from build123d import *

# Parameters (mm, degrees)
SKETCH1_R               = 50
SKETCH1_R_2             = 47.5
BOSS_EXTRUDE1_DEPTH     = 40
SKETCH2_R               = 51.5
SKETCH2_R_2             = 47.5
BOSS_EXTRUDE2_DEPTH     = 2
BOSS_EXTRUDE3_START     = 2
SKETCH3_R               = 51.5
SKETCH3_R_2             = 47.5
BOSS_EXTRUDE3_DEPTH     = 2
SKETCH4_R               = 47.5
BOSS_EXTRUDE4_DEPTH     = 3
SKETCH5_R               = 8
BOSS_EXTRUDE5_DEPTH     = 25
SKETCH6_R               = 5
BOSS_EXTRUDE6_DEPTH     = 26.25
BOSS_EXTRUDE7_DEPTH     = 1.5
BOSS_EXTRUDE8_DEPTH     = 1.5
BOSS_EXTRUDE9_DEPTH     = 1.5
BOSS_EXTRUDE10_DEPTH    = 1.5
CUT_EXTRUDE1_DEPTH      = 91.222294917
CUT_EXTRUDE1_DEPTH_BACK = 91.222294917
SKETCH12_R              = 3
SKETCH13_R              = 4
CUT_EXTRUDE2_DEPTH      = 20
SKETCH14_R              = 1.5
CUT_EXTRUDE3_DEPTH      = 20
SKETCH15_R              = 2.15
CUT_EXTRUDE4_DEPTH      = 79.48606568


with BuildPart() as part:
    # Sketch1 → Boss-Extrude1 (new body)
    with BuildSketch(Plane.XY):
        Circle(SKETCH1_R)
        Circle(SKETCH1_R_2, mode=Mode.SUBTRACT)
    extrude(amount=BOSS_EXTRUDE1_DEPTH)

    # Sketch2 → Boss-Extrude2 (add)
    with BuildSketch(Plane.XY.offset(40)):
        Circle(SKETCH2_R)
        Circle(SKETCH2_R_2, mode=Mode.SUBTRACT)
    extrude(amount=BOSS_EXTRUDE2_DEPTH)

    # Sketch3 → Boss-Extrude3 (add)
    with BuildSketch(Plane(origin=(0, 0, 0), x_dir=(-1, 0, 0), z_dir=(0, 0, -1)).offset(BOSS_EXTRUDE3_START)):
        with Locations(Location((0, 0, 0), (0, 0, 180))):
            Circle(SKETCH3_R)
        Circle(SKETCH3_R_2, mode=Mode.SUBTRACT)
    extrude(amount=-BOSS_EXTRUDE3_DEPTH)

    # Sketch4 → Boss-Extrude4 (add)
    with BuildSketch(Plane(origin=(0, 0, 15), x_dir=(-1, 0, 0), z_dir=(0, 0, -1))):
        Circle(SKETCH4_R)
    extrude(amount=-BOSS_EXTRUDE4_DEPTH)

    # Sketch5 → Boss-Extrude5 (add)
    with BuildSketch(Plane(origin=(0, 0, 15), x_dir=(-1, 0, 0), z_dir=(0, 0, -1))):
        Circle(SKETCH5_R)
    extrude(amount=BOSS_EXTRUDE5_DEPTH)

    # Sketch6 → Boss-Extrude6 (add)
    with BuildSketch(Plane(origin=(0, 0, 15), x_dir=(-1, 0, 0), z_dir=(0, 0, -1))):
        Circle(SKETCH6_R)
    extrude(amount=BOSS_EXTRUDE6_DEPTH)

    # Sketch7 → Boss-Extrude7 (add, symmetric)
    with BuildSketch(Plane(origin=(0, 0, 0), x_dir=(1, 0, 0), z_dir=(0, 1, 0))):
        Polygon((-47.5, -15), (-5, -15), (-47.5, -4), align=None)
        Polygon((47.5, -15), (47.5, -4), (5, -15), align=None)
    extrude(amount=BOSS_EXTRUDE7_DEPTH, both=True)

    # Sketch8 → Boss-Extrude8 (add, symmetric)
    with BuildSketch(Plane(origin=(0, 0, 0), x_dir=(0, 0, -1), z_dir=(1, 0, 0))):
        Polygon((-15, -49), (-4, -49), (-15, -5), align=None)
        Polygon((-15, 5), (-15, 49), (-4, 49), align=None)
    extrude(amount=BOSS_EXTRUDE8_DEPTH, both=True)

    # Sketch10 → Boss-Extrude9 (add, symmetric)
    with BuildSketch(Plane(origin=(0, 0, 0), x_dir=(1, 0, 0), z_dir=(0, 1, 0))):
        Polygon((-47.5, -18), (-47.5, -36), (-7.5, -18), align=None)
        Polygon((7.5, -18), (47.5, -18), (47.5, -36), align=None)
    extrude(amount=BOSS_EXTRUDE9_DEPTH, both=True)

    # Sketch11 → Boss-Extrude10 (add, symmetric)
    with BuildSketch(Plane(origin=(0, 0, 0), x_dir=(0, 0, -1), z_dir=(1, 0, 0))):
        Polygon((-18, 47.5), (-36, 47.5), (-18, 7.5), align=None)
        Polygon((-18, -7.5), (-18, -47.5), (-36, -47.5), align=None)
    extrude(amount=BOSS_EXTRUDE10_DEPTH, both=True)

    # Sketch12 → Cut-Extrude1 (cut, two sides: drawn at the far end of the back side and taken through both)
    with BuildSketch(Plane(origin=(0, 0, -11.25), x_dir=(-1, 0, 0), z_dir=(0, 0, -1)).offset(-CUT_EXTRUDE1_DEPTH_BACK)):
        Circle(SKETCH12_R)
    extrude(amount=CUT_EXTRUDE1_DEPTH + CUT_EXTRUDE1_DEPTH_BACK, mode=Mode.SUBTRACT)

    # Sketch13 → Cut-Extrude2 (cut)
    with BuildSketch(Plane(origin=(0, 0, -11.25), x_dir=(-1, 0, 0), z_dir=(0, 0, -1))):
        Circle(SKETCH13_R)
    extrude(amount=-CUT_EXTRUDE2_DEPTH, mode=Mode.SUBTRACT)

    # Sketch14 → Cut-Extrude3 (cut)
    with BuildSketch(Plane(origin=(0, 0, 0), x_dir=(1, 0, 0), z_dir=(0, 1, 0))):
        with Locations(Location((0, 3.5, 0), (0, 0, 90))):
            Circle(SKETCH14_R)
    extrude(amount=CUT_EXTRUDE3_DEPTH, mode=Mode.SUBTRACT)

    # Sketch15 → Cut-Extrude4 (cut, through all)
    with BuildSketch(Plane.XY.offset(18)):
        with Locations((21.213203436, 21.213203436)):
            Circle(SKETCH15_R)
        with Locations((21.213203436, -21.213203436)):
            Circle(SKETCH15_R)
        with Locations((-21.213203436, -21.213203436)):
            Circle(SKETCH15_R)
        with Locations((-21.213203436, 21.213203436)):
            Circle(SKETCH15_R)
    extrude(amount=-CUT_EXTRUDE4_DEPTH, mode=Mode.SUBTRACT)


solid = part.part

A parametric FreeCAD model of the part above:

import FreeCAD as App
import Part
import Sketcher
from FreeCAD import Vector
Q = App.Units.Quantity

doc = App.newDocument("Part")
body = doc.addObject("PartDesign::Body", "Body")

sketch1 = doc.addObject("Sketcher::SketchObject", "Sketch")
body.addObject(sketch1)
sketch1.AttachmentSupport = (doc.XY_Plane, [""])
sketch1.MapMode = "FlatFace"
sketch1.addGeometry([
    Part.Circle(Vector(0, 0, 0), Vector(0, 0, 1), 50),
    Part.Circle(Vector(0, 0, 0), Vector(0, 0, 1), 47.5),
], False)
sketch1.addConstraint([
    Sketcher.Constraint("Coincident", 0, 3, -1, 1),
    Sketcher.Constraint("Coincident", 1, 3, -1, 1),
    Sketcher.Constraint("Diameter", 0, Q("100 mm")),
    Sketcher.Constraint("Diameter", 1, Q("95 mm")),
])
pad1 = doc.addObject("PartDesign::Pad", "Pad")
body.addObject(pad1)
pad1.Profile = sketch1
pad1.Length = 40

sketch2 = doc.addObject("Sketcher::SketchObject", "Sketch001")
body.addObject(sketch2)
sketch2.AttachmentSupport = (doc.XY_Plane, [""])
sketch2.MapMode = "FlatFace"
sketch2.AttachmentOffset = App.Placement(Vector(0, 0, 40), App.Rotation())
sketch2.addGeometry([
    Part.Circle(Vector(0, 0, 0), Vector(0, 0, 1), 51.5),
    Part.Circle(Vector(0, 0, 0), Vector(0, 0, 1), 47.5),
], False)
sketch2.addConstraint([
    Sketcher.Constraint("Coincident", 0, 3, -1, 1),
    Sketcher.Constraint("Coincident", 1, 3, -1, 1),
    Sketcher.Constraint("Diameter", 0, Q("103 mm")),
    Sketcher.Constraint("Diameter", 1, Q("95 mm")),
])
pad2 = doc.addObject("PartDesign::Pad", "Pad001")
body.addObject(pad2)
pad2.Profile = sketch2
pad2.Length = 2

sketch3 = doc.addObject("Sketcher::SketchObject", "Sketch002")
body.addObject(sketch3)
sketch3.AttachmentSupport = (doc.XY_Plane, [""])
sketch3.MapMode = "FlatFace"
sketch3.AttachmentOffset = App.Placement(Vector(0, 0, -2), App.Rotation())
sketch3.addGeometry([
    Part.Circle(Vector(0, 0, 0), Vector(0, 0, 1), 51.5),
    Part.Circle(Vector(0, 0, 0), Vector(0, 0, 1), 47.5),
], False)
sketch3.addConstraint([
    Sketcher.Constraint("Coincident", 0, 3, -1, 1),
    Sketcher.Constraint("Coincident", 1, 3, -1, 1),
    Sketcher.Constraint("Diameter", 0, Q("103 mm")),
    Sketcher.Constraint("Diameter", 1, Q("95 mm")),
])
pad3 = doc.addObject("PartDesign::Pad", "Pad002")
body.addObject(pad3)
pad3.Profile = sketch3
pad3.Length = 2

sketch4 = doc.addObject("Sketcher::SketchObject", "Sketch003")
body.addObject(sketch4)
sketch4.AttachmentSupport = (doc.XY_Plane, [""])
sketch4.MapMode = "FlatFace"
sketch4.AttachmentOffset = App.Placement(Vector(0, 0, 15), App.Rotation())
sketch4.addGeometry(Part.Circle(Vector(0, 0, 0), Vector(0, 0, 1), 47.5), False)
sketch4.addConstraint([
    Sketcher.Constraint("Coincident", 0, 3, -1, 1),
    Sketcher.Constraint("Diameter", 0, Q("95 mm")),
])
pad4 = doc.addObject("PartDesign::Pad", "Pad003")
body.addObject(pad4)
pad4.Profile = sketch4
pad4.Length = 3

sketch5 = doc.addObject("Sketcher::SketchObject", "Sketch004")
body.addObject(sketch5)
sketch5.AttachmentSupport = (doc.XY_Plane, [""])
sketch5.MapMode = "FlatFace"
sketch5.AttachmentOffset = App.Placement(Vector(0, 0, 15), App.Rotation())
sketch5.addGeometry(Part.Circle(Vector(0, 0, 0), Vector(0, 0, 1), 8), False)
sketch5.addConstraint([
    Sketcher.Constraint("Coincident", 0, 3, -1, 1),
    Sketcher.Constraint("Diameter", 0, Q("16 mm")),
])
pad5 = doc.addObject("PartDesign::Pad", "Pad004")
body.addObject(pad5)
pad5.Profile = sketch5
pad5.Length = 25
pad5.Reversed = True

sketch6 = doc.addObject("Sketcher::SketchObject", "Sketch005")
body.addObject(sketch6)
sketch6.AttachmentSupport = (doc.XY_Plane, [""])
sketch6.MapMode = "FlatFace"
sketch6.AttachmentOffset = App.Placement(Vector(0, 0, 15), App.Rotation())
sketch6.addGeometry(Part.Circle(Vector(0, 0, 0), Vector(0, 0, 1), 5), False)
sketch6.addConstraint([
    Sketcher.Constraint("Coincident", 0, 3, -1, 1),
    Sketcher.Constraint("Diameter", 0, Q("10 mm")),
])
pad6 = doc.addObject("PartDesign::Pad", "Pad005")
body.addObject(pad6)
pad6.Profile = sketch6
pad6.Length = 26.25
pad6.Reversed = True

sketch7 = doc.addObject("Sketcher::SketchObject", "Sketch006")
body.addObject(sketch7)
sketch7.AttachmentSupport = (doc.XZ_Plane, [""])
sketch7.MapMode = "FlatFace"
sketch7.addGeometry([
    Part.LineSegment(Vector(-47.5, 15, 0), Vector(-5, 15, 0)),
    Part.LineSegment(Vector(-5, 15, 0), Vector(-47.5, 4, 0)),
    Part.LineSegment(Vector(-47.5, 4, 0), Vector(-47.5, 15, 0)),
    Part.LineSegment(Vector(47.5, 15, 0), Vector(47.5, 4, 0)),
    Part.LineSegment(Vector(47.5, 4, 0), Vector(5, 15, 0)),
    Part.LineSegment(Vector(5, 15, 0), Vector(47.5, 15, 0)),
], False)
sketch7.addConstraint([
    Sketcher.Constraint("Coincident", 0, 2, 1, 1),
    Sketcher.Constraint("Coincident", 1, 2, 2, 1),
    Sketcher.Constraint("Coincident", 2, 2, 0, 1),
    Sketcher.Constraint("Coincident", 3, 2, 4, 1),
    Sketcher.Constraint("Coincident", 4, 2, 5, 1),
    Sketcher.Constraint("Coincident", 5, 2, 3, 1),
    Sketcher.Constraint("Horizontal", 0),
    Sketcher.Constraint("Vertical", 2),
    Sketcher.Constraint("Vertical", 3),
    Sketcher.Constraint("Horizontal", 5),
    Sketcher.Constraint("Symmetric", 1, 2, 3, 2, -2),
    Sketcher.Constraint("Symmetric", 0, 2, 4, 2, -2),
    Sketcher.Constraint("DistanceY", 2, 1, 2, 2, Q("11 mm")),
    Sketcher.Constraint("DistanceX", 0, 1, 0, 2, Q("42.5 mm")),
    Sketcher.Constraint("DistanceX", 0, 2, -1, 1, Q("5 mm")),
    Sketcher.Constraint("DistanceY", -1, 1, 0, 2, Q("15 mm")),
])
pad7 = doc.addObject("PartDesign::Pad", "Pad006")
body.addObject(pad7)
pad7.Profile = sketch7
pad7.Length = 3
pad7.Midplane = True

sketch8 = doc.addObject("Sketcher::SketchObject", "Sketch007")
body.addObject(sketch8)
sketch8.AttachmentSupport = (doc.YZ_Plane, [""])
sketch8.MapMode = "FlatFace"
sketch8.addGeometry([
    Part.LineSegment(Vector(-49, 15, 0), Vector(-49, 4, 0)),
    Part.LineSegment(Vector(-49, 4, 0), Vector(-5, 15, 0)),
    Part.LineSegment(Vector(-5, 15, 0), Vector(-49, 15, 0)),
    Part.LineSegment(Vector(49, 15, 0), Vector(5, 15, 0)),
    Part.LineSegment(Vector(5, 15, 0), Vector(49, 4, 0)),
    Part.LineSegment(Vector(49, 4, 0), Vector(49, 15, 0)),
], False)
sketch8.addConstraint([
    Sketcher.Constraint("Coincident", 0, 2, 1, 1),
    Sketcher.Constraint("Coincident", 1, 2, 2, 1),
    Sketcher.Constraint("Coincident", 2, 2, 0, 1),
    Sketcher.Constraint("Coincident", 3, 2, 4, 1),
    Sketcher.Constraint("Coincident", 4, 2, 5, 1),
    Sketcher.Constraint("Coincident", 5, 2, 3, 1),
    Sketcher.Constraint("Vertical", 0),
    Sketcher.Constraint("Horizontal", 2),
    Sketcher.Constraint("Horizontal", 3),
    Sketcher.Constraint("Vertical", 5),
    Sketcher.Constraint("Symmetric", 1, 2, 3, 2, -2),
    Sketcher.Constraint("Symmetric", 0, 2, 4, 2, -2),
    Sketcher.Constraint("DistanceX", 2, 2, 2, 1, Q("44 mm")),
    Sketcher.Constraint("DistanceY", 0, 2, 0, 1, Q("11 mm")),
    Sketcher.Constraint("DistanceX", 0, 2, -1, 1, Q("49 mm")),
    Sketcher.Constraint("DistanceY", -1, 1, 0, 2, Q("4 mm")),
])
pad8 = doc.addObject("PartDesign::Pad", "Pad007")
body.addObject(pad8)
pad8.Profile = sketch8
pad8.Length = 3
pad8.Midplane = True

sketch9 = doc.addObject("Sketcher::SketchObject", "Sketch008")
body.addObject(sketch9)
sketch9.AttachmentSupport = (doc.XZ_Plane, [""])
sketch9.MapMode = "FlatFace"
sketch9.addGeometry([
    Part.LineSegment(Vector(-47.5, 18, 0), Vector(-47.5, 36, 0)),
    Part.LineSegment(Vector(-47.5, 36, 0), Vector(-7.5, 18, 0)),
    Part.LineSegment(Vector(-7.5, 18, 0), Vector(-47.5, 18, 0)),
    Part.LineSegment(Vector(47.5, 18, 0), Vector(7.5, 18, 0)),
    Part.LineSegment(Vector(7.5, 18, 0), Vector(47.5, 36, 0)),
    Part.LineSegment(Vector(47.5, 36, 0), Vector(47.5, 18, 0)),
], False)
sketch9.addConstraint([
    Sketcher.Constraint("Coincident", 0, 2, 1, 1),
    Sketcher.Constraint("Coincident", 1, 2, 2, 1),
    Sketcher.Constraint("Coincident", 2, 2, 0, 1),
    Sketcher.Constraint("Coincident", 3, 2, 4, 1),
    Sketcher.Constraint("Coincident", 4, 2, 5, 1),
    Sketcher.Constraint("Coincident", 5, 2, 3, 1),
    Sketcher.Constraint("Vertical", 0),
    Sketcher.Constraint("Horizontal", 2),
    Sketcher.Constraint("Horizontal", 3),
    Sketcher.Constraint("Vertical", 5),
    Sketcher.Constraint("Symmetric", 1, 2, 3, 2, -2),
    Sketcher.Constraint("Symmetric", 0, 2, 4, 2, -2),
    Sketcher.Constraint("DistanceX", 2, 2, 2, 1, Q("40 mm")),
    Sketcher.Constraint("DistanceY", 0, 1, 0, 2, Q("18 mm")),
    Sketcher.Constraint("DistanceY", -1, 1, 0, 2, Q("36 mm")),
    Sketcher.Constraint("DistanceX", 1, 2, 3, 2, Q("15 mm")),
])
pad9 = doc.addObject("PartDesign::Pad", "Pad008")
body.addObject(pad9)
pad9.Profile = sketch9
pad9.Length = 3
pad9.Midplane = True

sketch10 = doc.addObject("Sketcher::SketchObject", "Sketch009")
body.addObject(sketch10)
sketch10.AttachmentSupport = (doc.YZ_Plane, [""])
sketch10.MapMode = "FlatFace"
sketch10.addGeometry([
    Part.LineSegment(Vector(47.5, 18, 0), Vector(47.5, 36, 0)),
    Part.LineSegment(Vector(47.5, 36, 0), Vector(7.5, 18, 0)),
    Part.LineSegment(Vector(7.5, 18, 0), Vector(47.5, 18, 0)),
    Part.LineSegment(Vector(-47.5, 18, 0), Vector(-7.5, 18, 0)),
    Part.LineSegment(Vector(-7.5, 18, 0), Vector(-47.5, 36, 0)),
    Part.LineSegment(Vector(-47.5, 36, 0), Vector(-47.5, 18, 0)),
], False)
sketch10.addConstraint([
    Sketcher.Constraint("Coincident", 0, 2, 1, 1),
    Sketcher.Constraint("Coincident", 1, 2, 2, 1),
    Sketcher.Constraint("Coincident", 2, 2, 0, 1),
    Sketcher.Constraint("Coincident", 3, 2, 4, 1),
    Sketcher.Constraint("Coincident", 4, 2, 5, 1),
    Sketcher.Constraint("Coincident", 5, 2, 3, 1),
    Sketcher.Constraint("Vertical", 0),
    Sketcher.Constraint("Horizontal", 2),
    Sketcher.Constraint("Horizontal", 3),
    Sketcher.Constraint("Vertical", 5),
    Sketcher.Constraint("Symmetric", 1, 2, 3, 2, -2),
    Sketcher.Constraint("Symmetric", 0, 2, 4, 2, -2),
    Sketcher.Constraint("DistanceX", 2, 1, 2, 2, Q("40 mm")),
    Sketcher.Constraint("DistanceY", 0, 1, 0, 2, Q("18 mm")),
    Sketcher.Constraint("DistanceY", -1, 1, 0, 2, Q("36 mm")),
    Sketcher.Constraint("DistanceX", 3, 2, 1, 2, Q("15 mm")),
])
pad10 = doc.addObject("PartDesign::Pad", "Pad009")
body.addObject(pad10)
pad10.Profile = sketch10
pad10.Length = 3
pad10.Midplane = True

sketch11 = doc.addObject("Sketcher::SketchObject", "Sketch010")
body.addObject(sketch11)
sketch11.AttachmentSupport = (doc.XY_Plane, [""])
sketch11.MapMode = "FlatFace"
sketch11.AttachmentOffset = App.Placement(Vector(0, 0, -11.25), App.Rotation())
sketch11.addGeometry(Part.Circle(Vector(0, 0, 0), Vector(0, 0, 1), 3), False)
sketch11.addConstraint([
    Sketcher.Constraint("Coincident", 0, 3, -1, 1),
    Sketcher.Constraint("Diameter", 0, Q("6 mm")),
])
pocket1 = doc.addObject("PartDesign::Pocket", "Pocket")
body.addObject(pocket1)
pocket1.Profile = sketch11
pocket1.Type = "ThroughAll"
pocket1.Midplane = True

sketch12 = doc.addObject("Sketcher::SketchObject", "Sketch011")
body.addObject(sketch12)
sketch12.AttachmentSupport = (doc.XY_Plane, [""])
sketch12.MapMode = "FlatFace"
sketch12.AttachmentOffset = App.Placement(Vector(0, 0, -11.25), App.Rotation())
sketch12.addGeometry(Part.Circle(Vector(0, 0, 0), Vector(0, 0, 1), 4), False)
sketch12.addConstraint([
    Sketcher.Constraint("Coincident", 0, 3, -1, 1),
    Sketcher.Constraint("Diameter", 0, Q("8 mm")),
])
pocket2 = doc.addObject("PartDesign::Pocket", "Pocket001")
body.addObject(pocket2)
pocket2.Profile = sketch12
pocket2.Length = 20
pocket2.Reversed = True

sketch13 = doc.addObject("Sketcher::SketchObject", "Sketch012")
body.addObject(sketch13)
sketch13.AttachmentSupport = (doc.XZ_Plane, [""])
sketch13.MapMode = "FlatFace"
sketch13.addGeometry(Part.Circle(Vector(0, -3.5, 0), Vector(0, 0, 1), 1.5), False)
sketch13.addConstraint([
    Sketcher.Constraint("PointOnObject", 0, 3, -2),
    Sketcher.Constraint("Diameter", 0, Q("3 mm")),
    Sketcher.Constraint("DistanceY", 0, 3, -1, 1, Q("3.5 mm")),
])
pocket3 = doc.addObject("PartDesign::Pocket", "Pocket002")
body.addObject(pocket3)
pocket3.Profile = sketch13
pocket3.Length = 20

sketch14 = doc.addObject("Sketcher::SketchObject", "Sketch013")
body.addObject(sketch14)
sketch14.AttachmentSupport = (doc.XY_Plane, [""])
sketch14.MapMode = "FlatFace"
sketch14.AttachmentOffset = App.Placement(Vector(0, 0, 18), App.Rotation())
sketch14.addGeometry([
    Part.Circle(Vector(21.213203, 21.213203, 0), Vector(0, 0, 1), 2.15),
    Part.Circle(Vector(21.213203, -21.213203, 0), Vector(0, 0, 1), 2.15),
    Part.Circle(Vector(-21.213203, -21.213203, 0), Vector(0, 0, 1), 2.15),
    Part.Circle(Vector(-21.213203, 21.213203, 0), Vector(0, 0, 1), 2.15),
], False)
sketch14.addConstraint([
    Sketcher.Constraint("Equal", 0, 1),
    Sketcher.Constraint("Equal", 1, 2),
    Sketcher.Constraint("Equal", 2, 3),
    Sketcher.Constraint("Symmetric", 0, 3, 2, 3, -1, 1),
    Sketcher.Constraint("Symmetric", 1, 3, 3, 3, -1, 1),
    Sketcher.Constraint("Symmetric", 1, 3, 2, 3, -2),
    Sketcher.Constraint("Diameter", 0, Q("4.3 mm")),
    Sketcher.Constraint("DistanceX", -1, 1, 0, 3, Q("21.213203 mm")),
    Sketcher.Constraint("DistanceY", -1, 1, 0, 3, Q("21.213203 mm")),
])
pocket4 = doc.addObject("PartDesign::Pocket", "Pocket003")
body.addObject(pocket4)
pocket4.Profile = sketch14
pocket4.Type = "ThroughAll"

doc.recompute()
